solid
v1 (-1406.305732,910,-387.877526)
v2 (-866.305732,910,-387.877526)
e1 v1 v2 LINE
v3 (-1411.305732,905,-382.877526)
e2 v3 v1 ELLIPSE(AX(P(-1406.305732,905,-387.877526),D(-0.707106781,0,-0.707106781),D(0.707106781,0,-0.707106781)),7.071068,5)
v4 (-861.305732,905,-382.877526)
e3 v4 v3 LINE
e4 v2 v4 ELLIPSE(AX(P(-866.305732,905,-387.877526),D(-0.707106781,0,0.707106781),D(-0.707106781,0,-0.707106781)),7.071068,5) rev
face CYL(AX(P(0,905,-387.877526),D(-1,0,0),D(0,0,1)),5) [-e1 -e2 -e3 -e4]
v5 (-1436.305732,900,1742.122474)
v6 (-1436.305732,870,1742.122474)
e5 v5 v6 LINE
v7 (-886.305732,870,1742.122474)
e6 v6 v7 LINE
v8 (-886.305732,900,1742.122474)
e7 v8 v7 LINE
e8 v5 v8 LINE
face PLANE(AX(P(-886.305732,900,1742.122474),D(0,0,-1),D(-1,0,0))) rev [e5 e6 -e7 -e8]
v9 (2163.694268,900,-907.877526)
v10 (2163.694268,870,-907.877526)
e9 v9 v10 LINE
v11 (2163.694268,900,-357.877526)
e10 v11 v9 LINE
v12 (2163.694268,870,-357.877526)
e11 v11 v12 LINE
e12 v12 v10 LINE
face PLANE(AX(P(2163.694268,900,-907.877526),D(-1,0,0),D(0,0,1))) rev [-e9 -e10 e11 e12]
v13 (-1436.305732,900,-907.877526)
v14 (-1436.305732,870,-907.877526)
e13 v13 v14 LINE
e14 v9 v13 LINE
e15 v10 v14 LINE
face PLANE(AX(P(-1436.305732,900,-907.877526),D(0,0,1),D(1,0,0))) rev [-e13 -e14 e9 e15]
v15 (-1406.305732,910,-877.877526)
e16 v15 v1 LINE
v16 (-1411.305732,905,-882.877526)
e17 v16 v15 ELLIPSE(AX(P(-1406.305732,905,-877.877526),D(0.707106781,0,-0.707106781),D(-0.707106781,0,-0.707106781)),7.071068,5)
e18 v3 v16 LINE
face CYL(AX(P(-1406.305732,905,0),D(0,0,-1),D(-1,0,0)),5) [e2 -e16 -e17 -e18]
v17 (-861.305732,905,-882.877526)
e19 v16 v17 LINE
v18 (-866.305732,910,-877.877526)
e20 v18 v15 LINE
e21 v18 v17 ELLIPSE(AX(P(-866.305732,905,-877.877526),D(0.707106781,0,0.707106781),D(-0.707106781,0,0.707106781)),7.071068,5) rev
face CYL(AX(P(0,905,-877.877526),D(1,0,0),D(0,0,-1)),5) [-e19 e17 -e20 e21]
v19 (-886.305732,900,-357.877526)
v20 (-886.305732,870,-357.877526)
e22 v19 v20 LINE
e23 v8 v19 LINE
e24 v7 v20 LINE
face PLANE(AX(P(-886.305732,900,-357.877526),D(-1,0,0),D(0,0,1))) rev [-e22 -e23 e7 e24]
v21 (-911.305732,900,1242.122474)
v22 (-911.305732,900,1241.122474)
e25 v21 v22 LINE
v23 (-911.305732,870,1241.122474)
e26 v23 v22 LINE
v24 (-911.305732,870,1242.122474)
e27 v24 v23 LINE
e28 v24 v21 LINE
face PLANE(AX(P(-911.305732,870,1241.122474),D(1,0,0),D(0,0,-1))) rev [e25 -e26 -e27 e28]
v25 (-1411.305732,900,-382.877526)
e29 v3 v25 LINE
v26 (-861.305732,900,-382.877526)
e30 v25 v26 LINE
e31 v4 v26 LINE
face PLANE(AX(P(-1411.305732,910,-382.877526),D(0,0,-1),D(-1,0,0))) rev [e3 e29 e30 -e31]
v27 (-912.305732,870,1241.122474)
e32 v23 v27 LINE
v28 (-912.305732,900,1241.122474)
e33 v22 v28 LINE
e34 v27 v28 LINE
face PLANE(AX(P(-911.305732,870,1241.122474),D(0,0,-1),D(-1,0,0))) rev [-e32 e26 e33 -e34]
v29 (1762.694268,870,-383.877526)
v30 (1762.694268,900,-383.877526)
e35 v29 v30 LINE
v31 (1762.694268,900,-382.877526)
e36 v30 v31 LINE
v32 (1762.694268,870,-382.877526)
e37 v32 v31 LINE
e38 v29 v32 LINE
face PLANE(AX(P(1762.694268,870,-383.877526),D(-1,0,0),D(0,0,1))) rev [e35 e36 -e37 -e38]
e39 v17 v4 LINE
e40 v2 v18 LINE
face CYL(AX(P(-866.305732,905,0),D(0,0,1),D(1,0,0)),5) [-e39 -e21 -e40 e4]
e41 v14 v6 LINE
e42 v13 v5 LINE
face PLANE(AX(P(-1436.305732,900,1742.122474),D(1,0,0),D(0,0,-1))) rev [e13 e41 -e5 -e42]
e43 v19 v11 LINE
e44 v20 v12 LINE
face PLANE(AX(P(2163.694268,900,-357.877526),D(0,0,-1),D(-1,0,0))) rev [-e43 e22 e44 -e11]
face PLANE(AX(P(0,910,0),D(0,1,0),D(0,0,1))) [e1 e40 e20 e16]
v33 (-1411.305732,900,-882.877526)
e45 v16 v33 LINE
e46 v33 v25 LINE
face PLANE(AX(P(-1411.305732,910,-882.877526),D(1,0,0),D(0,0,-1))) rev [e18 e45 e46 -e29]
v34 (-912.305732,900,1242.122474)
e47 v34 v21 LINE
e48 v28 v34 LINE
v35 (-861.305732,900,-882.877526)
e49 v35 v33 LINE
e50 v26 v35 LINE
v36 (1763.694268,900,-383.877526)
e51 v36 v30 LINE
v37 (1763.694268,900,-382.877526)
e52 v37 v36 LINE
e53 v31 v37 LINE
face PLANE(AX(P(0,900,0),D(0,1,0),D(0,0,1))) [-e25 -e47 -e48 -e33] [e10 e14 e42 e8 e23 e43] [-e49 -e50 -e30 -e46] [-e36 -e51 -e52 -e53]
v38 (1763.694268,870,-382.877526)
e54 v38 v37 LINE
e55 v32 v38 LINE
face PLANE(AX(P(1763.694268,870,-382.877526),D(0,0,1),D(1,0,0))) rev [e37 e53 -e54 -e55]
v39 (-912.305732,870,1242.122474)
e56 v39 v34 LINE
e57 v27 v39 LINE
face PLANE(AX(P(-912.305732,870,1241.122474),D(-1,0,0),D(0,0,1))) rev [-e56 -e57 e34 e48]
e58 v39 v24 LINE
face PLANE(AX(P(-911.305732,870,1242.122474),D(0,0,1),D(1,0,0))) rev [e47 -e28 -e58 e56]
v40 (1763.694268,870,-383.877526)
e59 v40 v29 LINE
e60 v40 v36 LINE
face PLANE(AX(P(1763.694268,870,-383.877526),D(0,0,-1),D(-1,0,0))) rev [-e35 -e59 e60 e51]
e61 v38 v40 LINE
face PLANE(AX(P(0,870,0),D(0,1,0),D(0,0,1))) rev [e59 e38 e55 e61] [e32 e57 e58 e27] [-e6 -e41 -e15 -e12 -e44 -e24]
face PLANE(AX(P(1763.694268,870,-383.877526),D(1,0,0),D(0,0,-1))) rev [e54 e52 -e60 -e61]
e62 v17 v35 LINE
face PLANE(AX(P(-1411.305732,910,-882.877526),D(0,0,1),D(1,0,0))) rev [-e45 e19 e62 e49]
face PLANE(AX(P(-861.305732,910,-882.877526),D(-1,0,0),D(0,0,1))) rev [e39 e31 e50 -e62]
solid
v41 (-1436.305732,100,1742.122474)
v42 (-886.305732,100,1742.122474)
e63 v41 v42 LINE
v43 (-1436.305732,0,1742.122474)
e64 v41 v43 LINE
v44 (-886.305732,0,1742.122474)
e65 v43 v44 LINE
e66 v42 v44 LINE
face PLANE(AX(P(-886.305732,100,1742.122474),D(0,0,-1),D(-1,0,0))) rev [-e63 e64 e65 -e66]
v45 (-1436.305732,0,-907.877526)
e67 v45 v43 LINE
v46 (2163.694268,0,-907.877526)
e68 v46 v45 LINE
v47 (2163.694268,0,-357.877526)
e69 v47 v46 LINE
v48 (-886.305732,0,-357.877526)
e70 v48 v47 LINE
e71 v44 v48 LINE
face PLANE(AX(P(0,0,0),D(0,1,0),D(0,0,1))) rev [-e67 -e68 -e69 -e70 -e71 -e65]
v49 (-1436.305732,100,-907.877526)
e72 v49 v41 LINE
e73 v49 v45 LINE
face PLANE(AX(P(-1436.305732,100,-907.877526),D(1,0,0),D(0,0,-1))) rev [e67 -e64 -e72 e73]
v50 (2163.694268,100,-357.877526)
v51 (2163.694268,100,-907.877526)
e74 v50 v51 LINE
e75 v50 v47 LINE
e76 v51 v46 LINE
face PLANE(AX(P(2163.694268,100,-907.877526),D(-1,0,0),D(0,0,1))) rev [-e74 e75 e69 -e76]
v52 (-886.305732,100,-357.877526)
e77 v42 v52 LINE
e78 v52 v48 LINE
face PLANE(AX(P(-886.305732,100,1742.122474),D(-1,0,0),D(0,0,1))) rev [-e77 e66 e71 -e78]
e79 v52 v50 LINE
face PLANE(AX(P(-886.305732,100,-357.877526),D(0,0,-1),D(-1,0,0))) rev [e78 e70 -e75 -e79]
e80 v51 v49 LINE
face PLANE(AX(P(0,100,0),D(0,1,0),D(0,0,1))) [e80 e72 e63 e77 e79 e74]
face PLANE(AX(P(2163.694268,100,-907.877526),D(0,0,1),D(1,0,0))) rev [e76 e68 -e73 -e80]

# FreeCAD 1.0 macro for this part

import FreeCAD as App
import Part
import Sketcher


def edges_at(feature, points):
    """Names of the edges that pass closest to the given points."""
    edges = feature.Shape.Edges
    near = lambda p: min(range(len(edges)), key=lambda i: edges[i].distToShape(Part.Vertex(*p))[0])
    return sorted({f"Edge{near(p) + 1}" for p in points})

doc = App.newDocument("Part")
body = doc.addObject("PartDesign::Body", "Body")

# Sketch on XZ plane
sketch1 = body.newObject("Sketcher::SketchObject", "Sketch")
sketch1.AttachmentSupport = (doc.getObject("XZ_Plane"), [""])
sketch1.MapMode = "FlatFace"
sketch1.addGeometry([
    Part.LineSegment(App.Vector(2164, -908, 0), App.Vector(-1436, -908, 0)),  # 0
    Part.LineSegment(App.Vector(-1436, -908, 0), App.Vector(-1436, 1742, 0)),  # 1
    Part.LineSegment(App.Vector(-1436, 1742, 0), App.Vector(-886, 1742, 0)),  # 2
    Part.LineSegment(App.Vector(-886, 1742, 0), App.Vector(-886, -358, 0)),  # 3
    Part.LineSegment(App.Vector(-886, -358, 0), App.Vector(2164, -358, 0)),  # 4
    Part.LineSegment(App.Vector(2164, -358, 0), App.Vector(2164, -908, 0)),  # 5
], False)
sketch1.addConstraint([
    Sketcher.Constraint("Coincident", 0, 2, 1, 1),
    Sketcher.Constraint("Coincident", 1, 2, 2, 1),
    Sketcher.Constraint("Coincident", 2, 2, 3, 1),
    Sketcher.Constraint("Coincident", 3, 2, 4, 1),
    Sketcher.Constraint("Coincident", 4, 2, 5, 1),
    Sketcher.Constraint("Coincident", 5, 2, 0, 1),
    Sketcher.Constraint("Horizontal", 0),
    Sketcher.Constraint("Vertical", 1),
    Sketcher.Constraint("Horizontal", 2),
    Sketcher.Constraint("Vertical", 3),
    Sketcher.Constraint("Horizontal", 4),
    Sketcher.Constraint("Vertical", 5),
    Sketcher.Constraint("Equal", 2, 5),
    Sketcher.Constraint("DistanceX", 0, 2, 0, 1, 3600.0),
    Sketcher.Constraint("DistanceX", 2, 1, 2, 2, 550.0),
    Sketcher.Constraint("DistanceY", 1, 1, 1, 2, 2650.0),
    Sketcher.Constraint("DistanceX", 0, 2, -1, 1, 1436.305732),
    Sketcher.Constraint("DistanceY", 0, 2, -1, 1, 907.877526),
])
pad1 = body.newObject("PartDesign::Pad", "Pad")
pad1.Profile = sketch1
pad1.Length = 100
pad1.Reversed = True
body2 = doc.addObject("PartDesign::Body", "Body001")

# Sketch on XZ plane
sketch2 = body2.newObject("Sketcher::SketchObject", "Sketch001")
sketch2.AttachmentSupport = (doc.getObject("XZ_Plane001"), [""])
sketch2.MapMode = "FlatFace"
sketch2.AttachmentOffset = App.Placement(App.Vector(0, 0, -870), App.Rotation())
sketch2.addGeometry([
    Part.LineSegment(App.Vector(-886, 1742, 0), App.Vector(-886, -358, 0)),  # 0
    Part.LineSegment(App.Vector(-886, -358, 0), App.Vector(2164, -358, 0)),  # 1
    Part.LineSegment(App.Vector(2164, -358, 0), App.Vector(2164, -908, 0)),  # 2
    Part.LineSegment(App.Vector(2164, -908, 0), App.Vector(-1436, -908, 0)),  # 3
    Part.LineSegment(App.Vector(-1436, -908, 0), App.Vector(-1436, 1742, 0)),  # 4
    Part.LineSegment(App.Vector(-1436, 1742, 0), App.Vector(-886, 1742, 0)),  # 5
], False)
sketch2.addConstraint([
    Sketcher.Constraint("Coincident", 0, 2, 1, 1),
    Sketcher.Constraint("Coincident", 1, 2, 2, 1),
    Sketcher.Constraint("Coincident", 2, 2, 3, 1),
    Sketcher.Constraint("Coincident", 3, 2, 4, 1),
    Sketcher.Constraint("Coincident", 4, 2, 5, 1),
    Sketcher.Constraint("Coincident", 5, 2, 0, 1),
    Sketcher.Constraint("Vertical", 0),
    Sketcher.Constraint("Horizontal", 1),
    Sketcher.Constraint("Vertical", 2),
    Sketcher.Constraint("Horizontal", 3),
    Sketcher.Constraint("Vertical", 4),
    Sketcher.Constraint("Horizontal", 5),
    Sketcher.Constraint("Equal", 5, 2),
    Sketcher.Constraint("DistanceX", 1, 1, 1, 2, 3050.0),
    Sketcher.Constraint("DistanceX", 3, 2, 3, 1, 3600.0),
    Sketcher.Constraint("DistanceY", 0, 2, 0, 1, 2100.0),
    Sketcher.Constraint("DistanceX", 0, 2, -1, 1, 886.305732),
    Sketcher.Constraint("DistanceY", 0, 2, -1, 1, 357.877526),
])
pad2 = body2.newObject("PartDesign::Pad", "Pad001")
pad2.Profile = sketch2
pad2.Length = 30
pad2.Reversed = True

# Sketch on XZ plane
sketch3 = body2.newObject("Sketcher::SketchObject", "Sketch002")
sketch3.AttachmentSupport = (doc.getObject("XZ_Plane001"), [""])
sketch3.MapMode = "FlatFace"
sketch3.AttachmentOffset = App.Placement(App.Vector(0, 0, -900), App.Rotation())
sketch3.addGeometry([
    Part.LineSegment(App.Vector(-912.3, 1241.1, 0), App.Vector(-912.3, 1242.1, 0)),  # 0
    Part.LineSegment(App.Vector(-912.3, 1242.1, 0), App.Vector(-911.3, 1242.1, 0)),  # 1
    Part.LineSegment(App.Vector(-911.3, 1242.1, 0), App.Vector(-911.3, 1241.1, 0)),  # 2
    Part.LineSegment(App.Vector(-911.3, 1241.1, 0), App.Vector(-912.3, 1241.1, 0)),  # 3
    Part.LineSegment(App.Vector(1762.7, -383.9, 0), App.Vector(1762.7, -382.9, 0)),  # 4
    Part.LineSegment(App.Vector(1762.7, -382.9, 0), App.Vector(1763.7, -382.9, 0)),  # 5
    Part.LineSegment(App.Vector(1763.7, -382.9, 0), App.Vector(1763.7, -383.9, 0)),  # 6
    Part.LineSegment(App.Vector(1763.7, -383.9, 0), App.Vector(1762.7, -383.9, 0)),  # 7
], False)
sketch3.addConstraint([
    Sketcher.Constraint("Coincident", 0, 2, 1, 1),
    Sketcher.Constraint("Coincident", 1, 2, 2, 1),
    Sketcher.Constraint("Coincident", 2, 2, 3, 1),
    Sketcher.Constraint("Coincident", 3, 2, 0, 1),
    Sketcher.Constraint("Coincident", 4, 2, 5, 1),
    Sketcher.Constraint("Coincident", 5, 2, 6, 1),
    Sketcher.Constraint("Coincident", 6, 2, 7, 1),
    Sketcher.Constraint("Coincident", 7, 2, 4, 1),
    Sketcher.Constraint("Vertical", 0),
    Sketcher.Constraint("Horizontal", 1),
    Sketcher.Constraint("Vertical", 2),
    Sketcher.Constraint("Horizontal", 3),
    Sketcher.Constraint("Vertical", 4),
    Sketcher.Constraint("Horizontal", 5),
    Sketcher.Constraint("Vertical", 6),
    Sketcher.Constraint("Horizontal", 7),
    Sketcher.Constraint("Equal", 3, 5),
    Sketcher.Constraint("Equal", 7, 0),
    Sketcher.Constraint("Equal", 2, 4),
    Sketcher.Constraint("DistanceX", 1, 1, 1, 2, 1.0),
    Sketcher.Constraint("DistanceX", 2, 2, 4, 2, 2674.0),
    Sketcher.Constraint("DistanceY", 4, 2, 2, 2, 1624.0),
    Sketcher.Constraint("DistanceX", 0, 2, -1, 1, 912.305732),
    Sketcher.Constraint("DistanceY", -1, 1, 0, 2, 1242.122474),
])
pocket1 = body2.newObject("PartDesign::Pocket", "Pocket")
pocket1.Profile = sketch3
pocket1.Length = 30
pocket1.Reversed = True

# Sketch on XZ plane
sketch4 = body2.newObject("Sketcher::SketchObject", "Sketch003")
sketch4.AttachmentSupport = (doc.getObject("XZ_Plane001"), [""])
sketch4.MapMode = "FlatFace"
sketch4.AttachmentOffset = App.Placement(App.Vector(0, 0, -900), App.Rotation())
sketch4.addGeometry([
    Part.LineSegment(App.Vector(-1411, -883, 0), App.Vector(-1411, -383, 0)),
    Part.LineSegment(App.Vector(-1411, -383, 0), App.Vector(-861, -383, 0)),
    Part.LineSegment(App.Vector(-861, -383, 0), App.Vector(-861, -883, 0)),
    Part.LineSegment(App.Vector(-861, -883, 0), App.Vector(-1411, -883, 0)),
], False)
sketch4.addConstraint([
    Sketcher.Constraint("Coincident", 0, 2, 1, 1),
    Sketcher.Constraint("Coincident", 1, 2, 2, 1),
    Sketcher.Constraint("Coincident", 2, 2, 3, 1),
    Sketcher.Constraint("Coincident", 3, 2, 0, 1),
    Sketcher.Constraint("Vertical", 0),
    Sketcher.Constraint("Horizontal", 1),
    Sketcher.Constraint("Vertical", 2),
    Sketcher.Constraint("Horizontal", 3),
    Sketcher.Constraint("DistanceX", 1, 1, 1, 2, 550.0),
    Sketcher.Constraint("DistanceY", 0, 1, 0, 2, 500.0),
    Sketcher.Constraint("DistanceX", 0, 2, -1, 1, 1411.305732),
    Sketcher.Constraint("DistanceY", 0, 2, -1, 1, 382.877526),
])
pad3 = body2.newObject("PartDesign::Pad", "Pad002")
pad3.Profile = sketch4
pad3.Length = 10
pad3.Reversed = True
doc.recompute()

fillet = body2.newObject("PartDesign::Fillet", "Fillet")
fillet.Base = (pad3, edges_at(pad3, [
    (-1411.306, 910, -632.878),
    (-1136.306, 910, -382.878),
    (-861.306, 910, -632.878),
    (-1136.306, 910, -882.878),
]))
fillet.Radius = 5

doc.recompute()
